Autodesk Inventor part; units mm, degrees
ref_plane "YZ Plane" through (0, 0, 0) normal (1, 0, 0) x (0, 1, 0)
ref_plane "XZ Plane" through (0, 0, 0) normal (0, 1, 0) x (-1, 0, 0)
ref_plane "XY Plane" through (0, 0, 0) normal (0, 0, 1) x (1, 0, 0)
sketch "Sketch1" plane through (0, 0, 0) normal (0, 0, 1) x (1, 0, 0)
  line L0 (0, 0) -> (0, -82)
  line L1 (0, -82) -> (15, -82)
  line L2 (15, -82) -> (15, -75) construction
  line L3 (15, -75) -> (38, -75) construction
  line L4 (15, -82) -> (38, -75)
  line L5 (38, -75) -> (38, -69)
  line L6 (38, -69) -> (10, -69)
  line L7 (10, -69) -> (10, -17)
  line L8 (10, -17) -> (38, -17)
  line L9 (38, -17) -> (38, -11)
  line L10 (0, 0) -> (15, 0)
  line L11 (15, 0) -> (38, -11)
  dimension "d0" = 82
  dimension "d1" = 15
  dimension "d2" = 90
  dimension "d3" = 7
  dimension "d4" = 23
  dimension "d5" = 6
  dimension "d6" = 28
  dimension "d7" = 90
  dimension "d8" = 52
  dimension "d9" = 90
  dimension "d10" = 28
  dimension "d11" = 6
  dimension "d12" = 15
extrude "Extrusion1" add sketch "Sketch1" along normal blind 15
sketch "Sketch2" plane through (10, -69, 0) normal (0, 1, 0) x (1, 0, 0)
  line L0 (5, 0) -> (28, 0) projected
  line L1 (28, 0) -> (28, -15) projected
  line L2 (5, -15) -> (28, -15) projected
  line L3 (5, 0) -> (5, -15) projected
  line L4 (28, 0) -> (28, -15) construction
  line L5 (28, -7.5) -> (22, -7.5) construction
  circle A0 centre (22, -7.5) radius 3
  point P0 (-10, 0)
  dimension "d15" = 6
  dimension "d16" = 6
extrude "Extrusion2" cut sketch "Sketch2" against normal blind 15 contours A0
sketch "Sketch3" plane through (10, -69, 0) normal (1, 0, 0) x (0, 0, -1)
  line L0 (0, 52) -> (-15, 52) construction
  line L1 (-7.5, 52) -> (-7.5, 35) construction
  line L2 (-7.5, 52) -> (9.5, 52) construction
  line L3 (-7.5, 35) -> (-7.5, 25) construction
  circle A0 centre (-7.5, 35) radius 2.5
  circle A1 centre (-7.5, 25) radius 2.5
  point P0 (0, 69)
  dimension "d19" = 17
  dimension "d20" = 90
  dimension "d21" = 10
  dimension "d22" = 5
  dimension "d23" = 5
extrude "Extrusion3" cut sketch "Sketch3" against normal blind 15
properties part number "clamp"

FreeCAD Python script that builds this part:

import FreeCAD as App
import Part
import Sketcher


def add_polygon(sketch, points):
    """Adds a closed chain of lines whose ends are joined by coincident constraints."""
    first, n = sketch.GeometryCount, len(points)
    for a, b in zip(points, points[1:] + points[:1]):
        sketch.addGeometry(Part.LineSegment(App.Vector(*a, 0), App.Vector(*b, 0)), False)
    for i in range(n):
        sketch.addConstraint(Sketcher.Constraint("Coincident", first + i, 2, first + (i + 1) % n, 1))

doc = App.newDocument("Part")
params = doc.addObject("Spreadsheet::Sheet", "Params")
for row, (alias, value) in enumerate([
    ("sketch1_width", "15 mm"),
    ("sketch1_width2", "28 mm"),
    ("sketch1_height", "82 mm"),
    ("sketch1_height2", "6 mm"),
    ("sketch1_height3", "52 mm"),
    ("pad1_length", "15 mm"),
    ("sketch2_diameter", "6 mm"),
    ("pocket1_length", "15 mm"),
    ("sketch3_diameter", "5 mm"),
    ("pocket2_length", "15 mm"),
], start=1):
    params.set(f"A{row}", alias)
    params.set(f"B{row}", "=" + value)
    params.setAlias(f"B{row}", alias)

body = doc.addObject("PartDesign::Body", "Body")

# Sketch on XY plane
sketch1 = body.newObject("Sketcher::SketchObject", "Sketch")
sketch1.AttachmentSupport = (doc.getObject("XY_Plane"), [""])
sketch1.MapMode = "FlatFace"
add_polygon(sketch1, [(15, 0), (0, 0), (0, -82), (15, -82), (38, -75), (38, -69), (10, -69), (10, -17), (38, -17), (38, -11)])  # lines 0-9
sketch1.addConstraint(Sketcher.Constraint("Horizontal", 0))
sketch1.addConstraint(Sketcher.Constraint("Vertical", 1))
sketch1.addConstraint(Sketcher.Constraint("Horizontal", 2))
sketch1.addConstraint(Sketcher.Constraint("Vertical", 4))
sketch1.addConstraint(Sketcher.Constraint("Horizontal", 5))
sketch1.addConstraint(Sketcher.Constraint("Vertical", 6))
sketch1.addConstraint(Sketcher.Constraint("Horizontal", 7))
sketch1.addConstraint(Sketcher.Constraint("Vertical", 8))
sketch1.addConstraint(Sketcher.Constraint("Coincident", 0, 2, -1, 1))
sketch1.addConstraint(Sketcher.Constraint("Vertical", 4, 2, 7, 2))
sketch1.addConstraint(Sketcher.Constraint("Vertical", 2, 2, 9, 2))
sketch1.addConstraint(Sketcher.Constraint("Equal", 4, 8))
sketch1.addConstraint(Sketcher.Constraint("DistanceX", 0, 2, 0, 1, 15.0))
sketch1.addConstraint(Sketcher.Constraint("DistanceX", 5, 2, 5, 1, 28.0))
sketch1.addConstraint(Sketcher.Constraint("DistanceY", 1, 2, 1, 1, 82.0))
sketch1.addConstraint(Sketcher.Constraint("DistanceY", 4, 1, 4, 2, 6.0))
sketch1.addConstraint(Sketcher.Constraint("DistanceY", 6, 1, 6, 2, 52.0))
sketch1.addConstraint(Sketcher.Constraint("DistanceX", 2, 2, 3, 2, 23.0))
sketch1.addConstraint(Sketcher.Constraint("DistanceY", 2, 2, 3, 2, 7.0))
sketch1.setExpression("Constraints[22]", "Params.sketch1_width")
sketch1.setExpression("Constraints[23]", "Params.sketch1_width2")
sketch1.setExpression("Constraints[24]", "Params.sketch1_height")
sketch1.setExpression("Constraints[25]", "Params.sketch1_height2")
sketch1.setExpression("Constraints[26]", "Params.sketch1_height3")
pad1 = body.newObject("PartDesign::Pad", "Pad")
pad1.Profile = sketch1
pad1.setExpression("Length", "Params.pad1_length")

# Sketch on XZ plane
sketch2 = body.newObject("Sketcher::SketchObject", "Sketch001")
sketch2.AttachmentSupport = (doc.getObject("XZ_Plane"), [""])
sketch2.MapMode = "FlatFace"
sketch2.AttachmentOffset = App.Placement(App.Vector(0, 0, 69), App.Rotation())
sketch2.addGeometry(Part.Circle(App.Vector(32, 7.5, 0), App.Vector(0, 0, 1), 3), False)
sketch2.addConstraint(Sketcher.Constraint("Diameter", 0, 6.0))
sketch2.addConstraint(Sketcher.Constraint("DistanceX", -1, 1, 0, 3, 32.0))
sketch2.addConstraint(Sketcher.Constraint("DistanceY", -1, 1, 0, 3, 7.5))
sketch2.setExpression("Constraints[0]", "Params.sketch2_diameter")
pocket1 = body.newObject("PartDesign::Pocket", "Pocket")
pocket1.Profile = sketch2
pocket1.setExpression("Length", "Params.pocket1_length")
pocket1.Reversed = True

# Sketch on YZ plane
sketch3 = body.newObject("Sketcher::SketchObject", "Sketch002")
sketch3.AttachmentSupport = (doc.getObject("YZ_Plane"), [""])
sketch3.MapMode = "FlatFace"
sketch3.AttachmentOffset = App.Placement(App.Vector(0, 0, 10), App.Rotation())
sketch3.addGeometry(Part.Circle(App.Vector(-34, 7.5, 0), App.Vector(0, 0, 1), 2.5), False)
sketch3.addGeometry(Part.Circle(App.Vector(-44, 7.5, 0), App.Vector(0, 0, 1), 2.5), False)
sketch3.addConstraint(Sketcher.Constraint("Equal", 0, 1))
sketch3.addConstraint(Sketcher.Constraint("Horizontal", 0, 3, 1, 3))
sketch3.addConstraint(Sketcher.Constraint("Diameter", 0, 5.0))
sketch3.addConstraint(Sketcher.Constraint("DistanceX", 1, 3, 0, 3, 10.0))
sketch3.addConstraint(Sketcher.Constraint("DistanceX", 0, 3, -1, 1, 34.0))
sketch3.addConstraint(Sketcher.Constraint("DistanceY", -1, 1, 0, 3, 7.5))
sketch3.setExpression("Constraints[2]", "Params.sketch3_diameter")
pocket2 = body.newObject("PartDesign::Pocket", "Pocket001")
pocket2.Profile = sketch3
pocket2.setExpression("Length", "Params.pocket2_length")

doc.recompute()
